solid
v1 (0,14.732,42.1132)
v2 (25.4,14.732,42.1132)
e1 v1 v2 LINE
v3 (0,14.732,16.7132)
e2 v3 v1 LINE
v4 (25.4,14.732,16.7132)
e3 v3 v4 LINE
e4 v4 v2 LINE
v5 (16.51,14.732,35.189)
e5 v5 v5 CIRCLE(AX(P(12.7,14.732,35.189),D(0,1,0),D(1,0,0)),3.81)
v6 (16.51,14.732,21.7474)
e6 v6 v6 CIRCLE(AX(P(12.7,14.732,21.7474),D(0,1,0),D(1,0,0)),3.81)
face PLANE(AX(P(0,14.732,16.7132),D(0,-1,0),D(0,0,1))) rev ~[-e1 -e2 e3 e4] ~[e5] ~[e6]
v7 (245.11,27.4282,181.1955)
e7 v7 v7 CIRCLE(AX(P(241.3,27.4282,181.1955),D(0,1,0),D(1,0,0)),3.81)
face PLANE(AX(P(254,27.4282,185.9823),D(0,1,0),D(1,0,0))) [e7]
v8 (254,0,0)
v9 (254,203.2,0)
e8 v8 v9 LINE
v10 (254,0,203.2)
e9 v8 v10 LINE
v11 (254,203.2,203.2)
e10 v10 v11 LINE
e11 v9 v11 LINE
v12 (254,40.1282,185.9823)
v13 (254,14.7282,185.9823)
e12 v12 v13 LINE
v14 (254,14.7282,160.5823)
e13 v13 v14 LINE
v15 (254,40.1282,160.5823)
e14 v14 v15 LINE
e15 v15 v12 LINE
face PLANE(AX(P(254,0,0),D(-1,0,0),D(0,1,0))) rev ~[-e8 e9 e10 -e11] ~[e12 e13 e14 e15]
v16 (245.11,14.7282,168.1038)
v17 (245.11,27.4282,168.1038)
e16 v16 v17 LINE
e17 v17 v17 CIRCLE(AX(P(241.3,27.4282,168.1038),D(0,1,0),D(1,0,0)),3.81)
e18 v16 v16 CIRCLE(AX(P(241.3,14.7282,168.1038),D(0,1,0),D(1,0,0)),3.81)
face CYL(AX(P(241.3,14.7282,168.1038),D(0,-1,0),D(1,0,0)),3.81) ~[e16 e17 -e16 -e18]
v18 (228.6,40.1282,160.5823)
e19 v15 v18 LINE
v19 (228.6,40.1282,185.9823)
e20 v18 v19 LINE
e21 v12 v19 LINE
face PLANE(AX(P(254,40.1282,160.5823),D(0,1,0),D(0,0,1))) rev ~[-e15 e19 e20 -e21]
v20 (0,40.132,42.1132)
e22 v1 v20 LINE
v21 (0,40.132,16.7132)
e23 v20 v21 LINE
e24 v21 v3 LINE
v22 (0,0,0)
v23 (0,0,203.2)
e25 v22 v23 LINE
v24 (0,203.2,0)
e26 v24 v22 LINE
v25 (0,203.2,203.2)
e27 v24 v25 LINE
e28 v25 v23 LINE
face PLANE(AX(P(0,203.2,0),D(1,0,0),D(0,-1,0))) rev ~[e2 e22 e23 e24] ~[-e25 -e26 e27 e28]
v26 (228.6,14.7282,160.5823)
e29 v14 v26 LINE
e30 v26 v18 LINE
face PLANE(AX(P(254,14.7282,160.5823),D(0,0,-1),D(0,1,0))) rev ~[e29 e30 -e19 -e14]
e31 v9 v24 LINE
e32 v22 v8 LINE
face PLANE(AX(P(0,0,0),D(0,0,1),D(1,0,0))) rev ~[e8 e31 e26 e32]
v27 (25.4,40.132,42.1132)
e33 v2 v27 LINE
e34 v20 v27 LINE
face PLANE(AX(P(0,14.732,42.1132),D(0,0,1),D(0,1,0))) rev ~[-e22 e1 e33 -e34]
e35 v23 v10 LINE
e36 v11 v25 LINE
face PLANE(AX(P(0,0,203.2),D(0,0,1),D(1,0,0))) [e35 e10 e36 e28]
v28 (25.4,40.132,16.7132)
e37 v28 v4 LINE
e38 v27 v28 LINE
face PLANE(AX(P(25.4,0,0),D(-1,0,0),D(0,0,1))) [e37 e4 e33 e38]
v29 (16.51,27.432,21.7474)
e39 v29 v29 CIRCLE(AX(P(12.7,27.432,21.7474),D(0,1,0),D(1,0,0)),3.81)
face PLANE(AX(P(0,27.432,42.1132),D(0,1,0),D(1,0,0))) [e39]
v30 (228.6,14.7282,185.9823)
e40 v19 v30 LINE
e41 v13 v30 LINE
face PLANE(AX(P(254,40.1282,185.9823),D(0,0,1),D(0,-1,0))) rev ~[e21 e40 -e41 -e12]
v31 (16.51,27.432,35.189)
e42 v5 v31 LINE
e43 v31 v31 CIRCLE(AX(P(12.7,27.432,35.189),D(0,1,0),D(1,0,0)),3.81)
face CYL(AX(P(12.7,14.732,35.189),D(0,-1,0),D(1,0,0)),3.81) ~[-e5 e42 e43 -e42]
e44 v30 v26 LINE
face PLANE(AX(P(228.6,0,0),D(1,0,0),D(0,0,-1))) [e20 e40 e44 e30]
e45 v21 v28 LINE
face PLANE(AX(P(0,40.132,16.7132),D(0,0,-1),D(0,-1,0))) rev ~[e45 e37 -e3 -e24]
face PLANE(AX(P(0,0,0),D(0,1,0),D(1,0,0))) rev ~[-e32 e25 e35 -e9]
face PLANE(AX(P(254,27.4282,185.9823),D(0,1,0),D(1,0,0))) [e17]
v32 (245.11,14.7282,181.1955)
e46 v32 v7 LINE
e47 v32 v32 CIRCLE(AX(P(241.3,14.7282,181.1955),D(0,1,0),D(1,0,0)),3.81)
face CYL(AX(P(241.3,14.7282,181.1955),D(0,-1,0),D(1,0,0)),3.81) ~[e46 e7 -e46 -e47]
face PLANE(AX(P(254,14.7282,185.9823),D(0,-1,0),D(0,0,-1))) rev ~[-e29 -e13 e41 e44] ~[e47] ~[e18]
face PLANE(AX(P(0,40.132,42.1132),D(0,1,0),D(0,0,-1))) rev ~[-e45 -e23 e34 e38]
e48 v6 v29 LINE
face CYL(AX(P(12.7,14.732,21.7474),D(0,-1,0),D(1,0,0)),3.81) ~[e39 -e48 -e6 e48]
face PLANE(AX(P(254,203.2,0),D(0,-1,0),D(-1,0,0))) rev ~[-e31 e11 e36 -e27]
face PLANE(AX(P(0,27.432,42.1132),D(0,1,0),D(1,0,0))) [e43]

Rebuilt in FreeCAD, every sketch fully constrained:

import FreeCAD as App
import Part
import Sketcher
Q = App.Units.Quantity


def add_polygon(sketch, points):
    """Adds a closed chain of lines whose ends are joined by coincident constraints."""
    first, n = sketch.GeometryCount, len(points)
    for a, b in zip(points, points[1:] + points[:1]):
        sketch.addGeometry(Part.LineSegment(App.Vector(*a, 0), App.Vector(*b, 0)), False)
    for i in range(n):
        sketch.addConstraint(Sketcher.Constraint("Coincident", first + i, 2, first + (i + 1) % n, 1))

doc = App.newDocument("Part")
params = doc.addObject("Spreadsheet::Sheet", "Params")
for row, (alias, value) in enumerate([
    ("sketch1_width", "10 in"),
    ("sketch1_height", "8 in"),
    ("pad1_length", "8 in"),
    ("sketch2_width", "1 in"),
    ("pocket1_length", "1 in"),
    ("sketch3_diameter", "0.3 in"),
    ("pad2_length", "0.5 in"),
    ("sketch4_width", "1 in"),
    ("pocket2_length", "1 in"),
    ("sketch5_diameter", "0.3 in"),
    ("pad3_length", "0.5 in"),
], start=1):
    params.set(f"A{row}", alias)
    params.set(f"B{row}", "=" + value)
    params.setAlias(f"B{row}", alias)

body = doc.addObject("PartDesign::Body", "Body")

sketch1 = doc.addObject("Sketcher::SketchObject", "Sketch")
body.addObject(sketch1)
sketch1.AttachmentSupport = (doc.XY_Plane, [""])
sketch1.MapMode = "FlatFace"
add_polygon(sketch1, [(0, 203), (0, 0), (254, 0), (254, 203)])
sketch1.addConstraint(Sketcher.Constraint("Vertical", 0))
sketch1.addConstraint(Sketcher.Constraint("Horizontal", 1))
sketch1.addConstraint(Sketcher.Constraint("Vertical", 2))
sketch1.addConstraint(Sketcher.Constraint("Horizontal", 3))
sketch1.addConstraint(Sketcher.Constraint("Coincident", 0, 2, -1, 1))
sketch1.addConstraint(Sketcher.Constraint("DistanceX", 1, 1, 1, 2, Q("10 in")))
sketch1.addConstraint(Sketcher.Constraint("DistanceY", 0, 2, 0, 1, Q("8 in")))
sketch1.setExpression("Constraints[9]", "Params.sketch1_width")
sketch1.setExpression("Constraints[10]", "Params.sketch1_height")
pad1 = doc.addObject("PartDesign::Pad", "Pad")
body.addObject(pad1)
pad1.Profile = sketch1
pad1.setExpression("Length", "Params.pad1_length")

sketch2 = doc.addObject("Sketcher::SketchObject", "Sketch001")
body.addObject(sketch2)
sketch2.AttachmentSupport = (doc.YZ_Plane, [""])
sketch2.MapMode = "FlatFace"
sketch2.AttachmentOffset = App.Placement(App.Vector(0, 0, 10 * 25.4), App.Rotation())
add_polygon(sketch2, [(40, 186), (15, 186), (15, 161), (40, 161)])
sketch2.addConstraint(Sketcher.Constraint("Horizontal", 0))
sketch2.addConstraint(Sketcher.Constraint("Vertical", 1))
sketch2.addConstraint(Sketcher.Constraint("Horizontal", 2))
sketch2.addConstraint(Sketcher.Constraint("Vertical", 3))
sketch2.addConstraint(Sketcher.Constraint("Equal", 2, 1))
sketch2.addConstraint(Sketcher.Constraint("DistanceX", 0, 2, 0, 1, Q("1 in")))
sketch2.addConstraint(Sketcher.Constraint("DistanceX", -1, 1, 0, 2, 14.7282))
sketch2.addConstraint(Sketcher.Constraint("DistanceY", -1, 1, 0, 2, 185.9823))
sketch2.setExpression("Constraints[9]", "Params.sketch2_width")
pocket1 = doc.addObject("PartDesign::Pocket", "Pocket")
body.addObject(pocket1)
pocket1.Profile = sketch2
pocket1.setExpression("Length", "Params.pocket1_length")

sketch3 = doc.addObject("Sketcher::SketchObject", "Sketch002")
body.addObject(sketch3)
sketch3.AttachmentSupport = (doc.XZ_Plane, [""])
sketch3.MapMode = "FlatFace"
sketch3.AttachmentOffset = App.Placement(App.Vector(0, 0, -14.7282), App.Rotation())
sketch3.addGeometry(Part.Circle(App.Vector(241.3, 181.2, 0), App.Vector(0, 0, 1), 3.8), False)
sketch3.addGeometry(Part.Circle(App.Vector(241.3, 168.1, 0), App.Vector(0, 0, 1), 3.8), False)
sketch3.addConstraint(Sketcher.Constraint("Equal", 0, 1))
sketch3.addConstraint(Sketcher.Constraint("Vertical", 0, 3, 1, 3))
sketch3.addConstraint(Sketcher.Constraint("Diameter", 0, Q("0.3 in")))
sketch3.addConstraint(Sketcher.Constraint("DistanceX", -1, 1, 0, 3, Q("9.5 in")))
sketch3.addConstraint(Sketcher.Constraint("DistanceY", -1, 1, 0, 3, 181.1955))
sketch3.addConstraint(Sketcher.Constraint("DistanceY", -1, 1, 1, 3, 168.1038))
sketch3.setExpression("Constraints[2]", "Params.sketch3_diameter")
pad2 = doc.addObject("PartDesign::Pad", "Pad001")
body.addObject(pad2)
pad2.Profile = sketch3
pad2.setExpression("Length", "Params.pad2_length")
pad2.Reversed = True

sketch4 = doc.addObject("Sketcher::SketchObject", "Sketch003")
body.addObject(sketch4)
sketch4.AttachmentSupport = (doc.YZ_Plane, [""])
sketch4.MapMode = "FlatFace"
add_polygon(sketch4, [(40, 17), (15, 17), (15, 42), (40, 42)])
sketch4.addConstraint(Sketcher.Constraint("Horizontal", 0))
sketch4.addConstraint(Sketcher.Constraint("Vertical", 1))
sketch4.addConstraint(Sketcher.Constraint("Horizontal", 2))
sketch4.addConstraint(Sketcher.Constraint("Vertical", 3))
sketch4.addConstraint(Sketcher.Constraint("Equal", 2, 1))
sketch4.addConstraint(Sketcher.Constraint("DistanceX", 0, 2, 0, 1, Q("1 in")))
sketch4.addConstraint(Sketcher.Constraint("DistanceX", -1, 1, 0, 2, Q("0.58 in")))
sketch4.addConstraint(Sketcher.Constraint("DistanceY", -1, 1, 0, 2, Q("0.658 in")))
sketch4.setExpression("Constraints[9]", "Params.sketch4_width")
pocket2 = doc.addObject("PartDesign::Pocket", "Pocket001")
body.addObject(pocket2)
pocket2.Profile = sketch4
pocket2.setExpression("Length", "Params.pocket2_length")
pocket2.Reversed = True

sketch5 = doc.addObject("Sketcher::SketchObject", "Sketch004")
body.addObject(sketch5)
sketch5.AttachmentSupport = (doc.XZ_Plane, [""])
sketch5.MapMode = "FlatFace"
sketch5.AttachmentOffset = App.Placement(App.Vector(0, 0, -0.58 * 25.4), App.Rotation())
sketch5.addGeometry(Part.Circle(App.Vector(12.7, 21.7, 0), App.Vector(0, 0, 1), 3.8), False)
sketch5.addGeometry(Part.Circle(App.Vector(12.7, 35.2, 0), App.Vector(0, 0, 1), 3.8), False)
sketch5.addConstraint(Sketcher.Constraint("Equal", 0, 1))
sketch5.addConstraint(Sketcher.Constraint("Vertical", 0, 3, 1, 3))
sketch5.addConstraint(Sketcher.Constraint("Diameter", 0, Q("0.3 in")))
sketch5.addConstraint(Sketcher.Constraint("DistanceX", -1, 1, 0, 3, Q("0.5 in")))
sketch5.addConstraint(Sketcher.Constraint("DistanceY", -1, 1, 0, 3, Q("0.8562 in")))
sketch5.addConstraint(Sketcher.Constraint("DistanceY", -1, 1, 1, 3, Q("1.3854 in")))
sketch5.setExpression("Constraints[2]", "Params.sketch5_diameter")
pad3 = doc.addObject("PartDesign::Pad", "Pad002")
body.addObject(pad3)
pad3.Profile = sketch5
pad3.setExpression("Length", "Params.pad3_length")
pad3.Reversed = True

doc.recompute()
